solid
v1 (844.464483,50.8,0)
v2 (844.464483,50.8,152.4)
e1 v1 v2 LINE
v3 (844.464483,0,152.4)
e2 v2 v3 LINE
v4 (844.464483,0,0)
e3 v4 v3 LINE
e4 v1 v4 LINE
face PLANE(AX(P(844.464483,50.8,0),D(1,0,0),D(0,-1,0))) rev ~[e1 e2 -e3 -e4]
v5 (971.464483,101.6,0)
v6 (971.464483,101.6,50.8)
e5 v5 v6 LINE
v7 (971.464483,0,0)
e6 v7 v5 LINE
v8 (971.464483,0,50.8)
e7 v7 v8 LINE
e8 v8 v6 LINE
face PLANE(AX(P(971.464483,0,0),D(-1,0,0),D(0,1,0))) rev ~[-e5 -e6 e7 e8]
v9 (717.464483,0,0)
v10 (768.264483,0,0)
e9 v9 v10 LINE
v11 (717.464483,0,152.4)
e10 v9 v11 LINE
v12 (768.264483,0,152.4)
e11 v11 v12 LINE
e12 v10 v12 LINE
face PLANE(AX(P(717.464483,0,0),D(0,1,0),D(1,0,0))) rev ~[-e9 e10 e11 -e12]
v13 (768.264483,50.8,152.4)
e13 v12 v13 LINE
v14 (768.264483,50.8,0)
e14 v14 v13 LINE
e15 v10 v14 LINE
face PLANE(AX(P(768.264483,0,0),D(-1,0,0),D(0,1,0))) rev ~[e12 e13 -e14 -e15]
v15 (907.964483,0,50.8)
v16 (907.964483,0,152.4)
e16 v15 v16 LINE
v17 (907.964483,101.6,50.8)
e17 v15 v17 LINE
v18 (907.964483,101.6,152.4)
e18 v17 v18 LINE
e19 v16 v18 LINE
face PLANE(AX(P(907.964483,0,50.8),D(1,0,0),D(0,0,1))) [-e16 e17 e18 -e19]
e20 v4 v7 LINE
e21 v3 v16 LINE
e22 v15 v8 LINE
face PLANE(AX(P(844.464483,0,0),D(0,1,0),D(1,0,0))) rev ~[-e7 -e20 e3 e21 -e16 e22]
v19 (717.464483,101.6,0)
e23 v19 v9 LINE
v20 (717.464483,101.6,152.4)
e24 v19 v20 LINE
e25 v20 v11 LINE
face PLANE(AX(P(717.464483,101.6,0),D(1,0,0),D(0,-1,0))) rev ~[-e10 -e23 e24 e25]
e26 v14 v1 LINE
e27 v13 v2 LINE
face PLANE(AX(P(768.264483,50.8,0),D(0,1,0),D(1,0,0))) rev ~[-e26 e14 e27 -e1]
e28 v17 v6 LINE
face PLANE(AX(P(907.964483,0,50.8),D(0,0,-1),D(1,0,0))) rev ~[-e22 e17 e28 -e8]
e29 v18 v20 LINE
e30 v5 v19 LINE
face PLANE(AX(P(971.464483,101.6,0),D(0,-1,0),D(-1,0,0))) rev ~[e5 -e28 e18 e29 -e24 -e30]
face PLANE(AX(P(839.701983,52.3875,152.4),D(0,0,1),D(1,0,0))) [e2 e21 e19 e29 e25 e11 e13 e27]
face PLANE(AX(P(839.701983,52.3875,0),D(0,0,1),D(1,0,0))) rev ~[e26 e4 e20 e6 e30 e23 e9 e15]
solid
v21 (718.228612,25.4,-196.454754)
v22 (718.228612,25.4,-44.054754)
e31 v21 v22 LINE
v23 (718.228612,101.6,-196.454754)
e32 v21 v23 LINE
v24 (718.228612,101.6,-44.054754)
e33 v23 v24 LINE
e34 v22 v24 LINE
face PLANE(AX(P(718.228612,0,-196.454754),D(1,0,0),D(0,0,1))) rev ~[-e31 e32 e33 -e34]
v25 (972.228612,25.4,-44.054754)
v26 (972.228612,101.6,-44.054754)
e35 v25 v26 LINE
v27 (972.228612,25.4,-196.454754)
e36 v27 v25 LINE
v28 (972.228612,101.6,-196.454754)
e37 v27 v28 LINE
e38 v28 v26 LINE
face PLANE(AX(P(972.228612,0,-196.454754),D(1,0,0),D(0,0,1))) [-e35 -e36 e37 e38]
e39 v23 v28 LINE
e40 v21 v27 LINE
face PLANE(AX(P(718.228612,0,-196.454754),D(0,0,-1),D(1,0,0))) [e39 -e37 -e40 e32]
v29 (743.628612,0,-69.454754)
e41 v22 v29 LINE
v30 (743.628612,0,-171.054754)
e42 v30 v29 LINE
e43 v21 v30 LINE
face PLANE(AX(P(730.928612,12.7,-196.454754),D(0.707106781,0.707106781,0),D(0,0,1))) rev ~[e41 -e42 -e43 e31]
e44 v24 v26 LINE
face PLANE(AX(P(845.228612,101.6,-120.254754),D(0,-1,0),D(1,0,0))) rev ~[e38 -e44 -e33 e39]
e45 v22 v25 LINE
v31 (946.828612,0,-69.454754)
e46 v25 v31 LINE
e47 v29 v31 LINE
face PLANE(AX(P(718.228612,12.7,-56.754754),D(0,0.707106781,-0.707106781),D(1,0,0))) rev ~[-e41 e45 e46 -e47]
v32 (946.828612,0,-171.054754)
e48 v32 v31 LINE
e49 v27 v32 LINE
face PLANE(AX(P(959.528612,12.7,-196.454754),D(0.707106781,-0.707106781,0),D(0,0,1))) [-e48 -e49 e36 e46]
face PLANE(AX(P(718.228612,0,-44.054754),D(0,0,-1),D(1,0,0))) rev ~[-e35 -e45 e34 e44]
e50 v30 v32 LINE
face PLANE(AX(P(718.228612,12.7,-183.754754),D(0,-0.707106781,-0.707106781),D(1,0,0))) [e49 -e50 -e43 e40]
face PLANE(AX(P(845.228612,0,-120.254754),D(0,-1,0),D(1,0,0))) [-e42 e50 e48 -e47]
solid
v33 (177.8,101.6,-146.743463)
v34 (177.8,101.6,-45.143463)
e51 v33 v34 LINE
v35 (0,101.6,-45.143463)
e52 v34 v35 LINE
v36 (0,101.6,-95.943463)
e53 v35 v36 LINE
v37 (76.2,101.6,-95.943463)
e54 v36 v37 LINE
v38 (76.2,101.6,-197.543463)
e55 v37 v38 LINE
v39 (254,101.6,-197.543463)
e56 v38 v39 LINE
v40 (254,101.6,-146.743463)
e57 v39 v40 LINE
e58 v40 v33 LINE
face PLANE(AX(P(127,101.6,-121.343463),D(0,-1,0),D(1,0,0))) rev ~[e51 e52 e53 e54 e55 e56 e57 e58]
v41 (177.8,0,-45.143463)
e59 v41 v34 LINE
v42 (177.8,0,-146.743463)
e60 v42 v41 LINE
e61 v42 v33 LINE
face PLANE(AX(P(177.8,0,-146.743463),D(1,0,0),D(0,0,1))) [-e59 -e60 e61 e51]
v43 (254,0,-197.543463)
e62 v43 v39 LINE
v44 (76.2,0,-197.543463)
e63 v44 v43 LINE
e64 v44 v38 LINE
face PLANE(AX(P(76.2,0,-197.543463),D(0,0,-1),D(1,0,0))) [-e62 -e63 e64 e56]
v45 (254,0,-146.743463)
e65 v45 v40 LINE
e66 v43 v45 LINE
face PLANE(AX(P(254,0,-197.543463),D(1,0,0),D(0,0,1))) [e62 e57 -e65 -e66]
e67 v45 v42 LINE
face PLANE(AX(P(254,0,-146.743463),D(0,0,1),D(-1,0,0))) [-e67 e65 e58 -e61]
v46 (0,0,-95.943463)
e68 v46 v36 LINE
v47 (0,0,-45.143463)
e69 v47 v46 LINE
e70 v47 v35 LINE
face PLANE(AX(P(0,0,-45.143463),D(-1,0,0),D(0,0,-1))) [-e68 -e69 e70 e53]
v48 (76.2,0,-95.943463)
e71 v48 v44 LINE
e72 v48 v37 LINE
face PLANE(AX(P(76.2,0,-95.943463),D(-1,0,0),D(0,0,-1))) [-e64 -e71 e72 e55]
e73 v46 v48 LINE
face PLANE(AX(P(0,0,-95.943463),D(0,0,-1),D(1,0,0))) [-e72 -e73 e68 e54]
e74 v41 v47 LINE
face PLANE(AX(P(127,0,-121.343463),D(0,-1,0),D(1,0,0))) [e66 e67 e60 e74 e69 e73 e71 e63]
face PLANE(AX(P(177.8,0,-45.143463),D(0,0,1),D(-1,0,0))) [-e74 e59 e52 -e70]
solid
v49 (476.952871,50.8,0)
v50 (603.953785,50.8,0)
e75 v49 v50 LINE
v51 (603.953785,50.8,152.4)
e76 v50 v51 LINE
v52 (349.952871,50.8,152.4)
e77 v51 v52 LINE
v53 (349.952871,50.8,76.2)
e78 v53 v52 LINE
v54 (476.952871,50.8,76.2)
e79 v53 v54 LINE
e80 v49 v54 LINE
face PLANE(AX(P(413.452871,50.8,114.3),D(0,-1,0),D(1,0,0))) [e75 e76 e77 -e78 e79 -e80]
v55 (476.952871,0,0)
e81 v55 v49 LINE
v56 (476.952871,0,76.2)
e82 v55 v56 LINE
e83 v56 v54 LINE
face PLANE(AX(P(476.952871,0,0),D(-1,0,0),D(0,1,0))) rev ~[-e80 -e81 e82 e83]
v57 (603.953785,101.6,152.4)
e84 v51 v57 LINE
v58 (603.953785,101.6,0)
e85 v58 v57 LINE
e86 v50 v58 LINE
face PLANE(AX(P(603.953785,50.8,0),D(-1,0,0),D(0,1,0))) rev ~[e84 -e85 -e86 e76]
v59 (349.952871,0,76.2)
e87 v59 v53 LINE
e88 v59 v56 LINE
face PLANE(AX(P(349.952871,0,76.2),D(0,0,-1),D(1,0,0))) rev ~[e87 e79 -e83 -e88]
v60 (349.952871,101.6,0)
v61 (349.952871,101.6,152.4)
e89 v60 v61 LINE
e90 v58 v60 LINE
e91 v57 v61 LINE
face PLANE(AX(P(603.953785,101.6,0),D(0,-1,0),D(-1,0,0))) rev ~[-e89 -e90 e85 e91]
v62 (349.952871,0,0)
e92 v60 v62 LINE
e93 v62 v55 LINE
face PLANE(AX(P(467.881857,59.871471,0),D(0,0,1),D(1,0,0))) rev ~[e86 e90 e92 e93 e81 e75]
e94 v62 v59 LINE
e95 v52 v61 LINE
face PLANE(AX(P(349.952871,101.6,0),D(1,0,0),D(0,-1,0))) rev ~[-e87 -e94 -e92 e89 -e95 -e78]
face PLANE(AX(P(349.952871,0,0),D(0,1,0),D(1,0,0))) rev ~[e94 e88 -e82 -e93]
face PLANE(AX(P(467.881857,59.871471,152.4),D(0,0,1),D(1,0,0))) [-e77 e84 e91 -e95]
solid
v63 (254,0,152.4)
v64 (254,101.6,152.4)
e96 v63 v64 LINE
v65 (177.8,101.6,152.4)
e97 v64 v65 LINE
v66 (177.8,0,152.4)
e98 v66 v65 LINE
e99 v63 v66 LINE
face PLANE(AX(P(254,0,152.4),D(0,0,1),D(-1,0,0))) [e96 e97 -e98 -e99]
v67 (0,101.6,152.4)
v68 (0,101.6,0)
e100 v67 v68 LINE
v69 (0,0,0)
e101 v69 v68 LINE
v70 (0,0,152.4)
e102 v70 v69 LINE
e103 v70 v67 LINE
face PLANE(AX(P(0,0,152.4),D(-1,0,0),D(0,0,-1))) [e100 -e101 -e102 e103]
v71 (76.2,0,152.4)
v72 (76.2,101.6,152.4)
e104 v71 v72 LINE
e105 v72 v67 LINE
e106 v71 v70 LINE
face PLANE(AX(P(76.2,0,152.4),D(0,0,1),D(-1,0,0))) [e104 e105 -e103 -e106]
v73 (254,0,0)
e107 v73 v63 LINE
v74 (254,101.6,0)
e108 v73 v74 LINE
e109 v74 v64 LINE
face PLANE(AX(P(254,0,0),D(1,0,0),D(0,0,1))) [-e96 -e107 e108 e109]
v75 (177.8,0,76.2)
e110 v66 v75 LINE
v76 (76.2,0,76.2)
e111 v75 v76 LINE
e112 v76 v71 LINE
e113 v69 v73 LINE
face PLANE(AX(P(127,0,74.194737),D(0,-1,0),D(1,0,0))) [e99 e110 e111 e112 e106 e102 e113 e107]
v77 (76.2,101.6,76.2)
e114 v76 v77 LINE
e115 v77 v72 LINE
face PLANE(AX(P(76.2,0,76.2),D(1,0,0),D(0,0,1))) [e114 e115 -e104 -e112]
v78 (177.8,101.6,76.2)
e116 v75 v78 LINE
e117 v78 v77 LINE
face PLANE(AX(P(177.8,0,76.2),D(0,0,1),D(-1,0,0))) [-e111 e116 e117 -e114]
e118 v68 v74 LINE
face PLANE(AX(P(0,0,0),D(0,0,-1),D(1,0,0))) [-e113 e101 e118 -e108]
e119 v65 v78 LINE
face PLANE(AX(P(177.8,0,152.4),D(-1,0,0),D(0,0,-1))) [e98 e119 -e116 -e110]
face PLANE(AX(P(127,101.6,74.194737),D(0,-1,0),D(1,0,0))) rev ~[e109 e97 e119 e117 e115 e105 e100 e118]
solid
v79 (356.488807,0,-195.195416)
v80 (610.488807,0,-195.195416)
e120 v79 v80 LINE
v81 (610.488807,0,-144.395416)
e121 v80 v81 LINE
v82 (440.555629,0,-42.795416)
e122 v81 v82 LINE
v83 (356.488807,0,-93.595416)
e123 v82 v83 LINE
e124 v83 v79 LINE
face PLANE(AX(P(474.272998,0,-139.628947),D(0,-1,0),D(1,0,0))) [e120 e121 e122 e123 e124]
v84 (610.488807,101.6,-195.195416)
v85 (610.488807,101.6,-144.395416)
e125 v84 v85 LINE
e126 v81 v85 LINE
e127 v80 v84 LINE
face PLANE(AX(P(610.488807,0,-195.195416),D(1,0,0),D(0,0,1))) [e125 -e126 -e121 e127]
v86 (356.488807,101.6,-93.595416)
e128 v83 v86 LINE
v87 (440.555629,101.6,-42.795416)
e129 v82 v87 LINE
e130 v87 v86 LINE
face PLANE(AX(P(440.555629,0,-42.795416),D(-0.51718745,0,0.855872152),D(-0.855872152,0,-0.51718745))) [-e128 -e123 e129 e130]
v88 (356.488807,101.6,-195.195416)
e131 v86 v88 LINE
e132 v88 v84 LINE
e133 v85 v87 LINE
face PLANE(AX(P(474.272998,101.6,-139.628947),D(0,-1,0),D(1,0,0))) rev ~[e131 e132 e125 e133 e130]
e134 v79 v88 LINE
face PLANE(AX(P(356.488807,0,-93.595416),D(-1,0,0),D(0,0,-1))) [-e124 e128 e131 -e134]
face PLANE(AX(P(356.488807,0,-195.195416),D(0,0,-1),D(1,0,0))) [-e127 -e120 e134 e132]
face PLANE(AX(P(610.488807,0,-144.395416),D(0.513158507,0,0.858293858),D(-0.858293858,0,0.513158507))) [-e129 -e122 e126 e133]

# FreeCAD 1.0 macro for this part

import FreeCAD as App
import Part
import Sketcher
Q = App.Units.Quantity


def edges_at(feature, points):
    """Names of the edges that pass closest to the given points."""
    edges = feature.Shape.Edges
    near = lambda p: min(range(len(edges)), key=lambda i: edges[i].distToShape(Part.Vertex(*p))[0])
    return sorted({f"Edge{near(p) + 1}" for p in points})


def add_polygon(sketch, points):
    """Adds a closed chain of lines whose ends are joined by coincident constraints."""
    first, n = sketch.GeometryCount, len(points)
    for a, b in zip(points, points[1:] + points[:1]):
        sketch.addGeometry(Part.LineSegment(App.Vector(*a, 0), App.Vector(*b, 0)), False)
    for i in range(n):
        sketch.addConstraint(Sketcher.Constraint("Coincident", first + i, 2, first + (i + 1) % n, 1))

doc = App.newDocument("Part")
body = doc.addObject("PartDesign::Body", "Body")

# Sketch on XZ plane
sketch1 = body.newObject("Sketcher::SketchObject", "Sketch")
sketch1.AttachmentSupport = (doc.getObject("XZ_Plane"), [""])
sketch1.MapMode = "FlatFace"
add_polygon(sketch1, [(0, 152), (0, 0), (254, 0), (254, 152), (178, 152), (178, 76), (76, 76), (76, 152)])  # lines 0-7
sketch1.addConstraint([
    Sketcher.Constraint("Vertical", 0),
    Sketcher.Constraint("Horizontal", 1),
    Sketcher.Constraint("Vertical", 2),
    Sketcher.Constraint("Horizontal", 3),
    Sketcher.Constraint("Vertical", 4),
    Sketcher.Constraint("Horizontal", 5),
    Sketcher.Constraint("Vertical", 6),
    Sketcher.Constraint("Horizontal", 7),
    Sketcher.Constraint("Coincident", 0, 2, -1, 1),
    Sketcher.Constraint("Horizontal", 3, 2, 6, 2),
    Sketcher.Constraint("Equal", 3, 7),
    Sketcher.Constraint("Equal", 7, 4),
    Sketcher.Constraint("DistanceX", 1, 1, 1, 2, Q("10 in")),
    Sketcher.Constraint("DistanceX", 3, 2, 3, 1, Q("3 in")),
    Sketcher.Constraint("DistanceY", 0, 2, 0, 1, Q("6 in")),
])
pad1 = body.newObject("PartDesign::Pad", "Pad")
pad1.Profile = sketch1
pad1.Length = Q("4 in")
pad1.Reversed = True
body2 = doc.addObject("PartDesign::Body", "Body001")

# Sketch on XY plane
sketch2 = body2.newObject("Sketcher::SketchObject", "Sketch001")
sketch2.AttachmentSupport = (doc.getObject("XY_Plane001"), [""])
sketch2.MapMode = "FlatFace"
add_polygon(sketch2, [(604, 102), (350, 102), (350, 0), (477, 0), (477, 51), (604, 51)])  # lines 0-5
sketch2.addConstraint([
    Sketcher.Constraint("Horizontal", 0),
    Sketcher.Constraint("Vertical", 1),
    Sketcher.Constraint("Horizontal", 2),
    Sketcher.Constraint("Vertical", 3),
    Sketcher.Constraint("Horizontal", 4),
    Sketcher.Constraint("Vertical", 5),
    Sketcher.Constraint("PointOnObject", 1, 2, -1),
    Sketcher.Constraint("Equal", 3, 5),
    Sketcher.Constraint("DistanceX", 2, 1, 2, 2, Q("5 in")),
    Sketcher.Constraint("DistanceY", 1, 2, 1, 1, Q("4 in")),
    Sketcher.Constraint("DistanceX", 0, 2, 0, 1, Q("254.000914 mm")),
    Sketcher.Constraint("DistanceX", -1, 1, 0, 2, Q("349.952871 mm")),
])
pad2 = body2.newObject("PartDesign::Pad", "Pad001")
pad2.Profile = sketch2
pad2.Length = Q("6 in")

# Sketch on XZ plane
sketch3 = body2.newObject("Sketcher::SketchObject", "Sketch002")
sketch3.AttachmentSupport = (doc.getObject("XZ_Plane001"), [""])
sketch3.MapMode = "FlatFace"
add_polygon(sketch3, [(350, 152), (350, 76), (477, 76), (477, 152)])  # lines 0-3
sketch3.addConstraint([
    Sketcher.Constraint("Vertical", 0),
    Sketcher.Constraint("Horizontal", 1),
    Sketcher.Constraint("Vertical", 2),
    Sketcher.Constraint("Horizontal", 3),
    Sketcher.Constraint("DistanceX", 1, 1, 1, 2, Q("5 in")),
    Sketcher.Constraint("DistanceY", 0, 2, 0, 1, Q("3 in")),
    Sketcher.Constraint("DistanceY", -1, 1, 0, 2, Q("3 in")),
    Sketcher.Constraint("DistanceX", -1, 1, 0, 2, Q("349.952871 mm")),
])
pad3 = body2.newObject("PartDesign::Pad", "Pad002")
pad3.Profile = sketch3
pad3.Length = Q("2 in")
pad3.Reversed = True

# Sketch on XZ plane
sketch4 = body2.newObject("Sketcher::SketchObject", "Sketch003")
sketch4.AttachmentSupport = (doc.getObject("XZ_Plane001"), [""])
sketch4.MapMode = "FlatFace"
add_polygon(sketch4, [(350, 152), (350, 76), (477, 76), (477, 152)])  # lines 0-3
sketch4.addConstraint([
    Sketcher.Constraint("Vertical", 0),
    Sketcher.Constraint("Horizontal", 1),
    Sketcher.Constraint("Vertical", 2),
    Sketcher.Constraint("Horizontal", 3),
    Sketcher.Constraint("DistanceX", 1, 1, 1, 2, Q("5 in")),
    Sketcher.Constraint("DistanceY", 0, 2, 0, 1, Q("3 in")),
    Sketcher.Constraint("DistanceY", -1, 1, 0, 2, Q("3 in")),
    Sketcher.Constraint("DistanceX", -1, 1, 0, 2, Q("349.952871 mm")),
])
pocket1 = body2.newObject("PartDesign::Pocket", "Pocket")
pocket1.Profile = sketch4
pocket1.Length = Q("2 in")
body3 = doc.addObject("PartDesign::Body", "Body002")

# Sketch on XY plane
sketch5 = body3.newObject("Sketcher::SketchObject", "Sketch004")
sketch5.AttachmentSupport = (doc.getObject("XY_Plane002"), [""])
sketch5.MapMode = "FlatFace"
add_polygon(sketch5, [(971, 102), (717, 102), (717, 0), (768, 0), (768, 51), (844, 51), (844, 0), (971, 0)])  # lines 0-7
sketch5.addConstraint([
    Sketcher.Constraint("Horizontal", 0),
    Sketcher.Constraint("Vertical", 1),
    Sketcher.Constraint("Horizontal", 2),
    Sketcher.Constraint("Vertical", 3),
    Sketcher.Constraint("Horizontal", 4),
    Sketcher.Constraint("Vertical", 5),
    Sketcher.Constraint("Horizontal", 6),
    Sketcher.Constraint("Vertical", 7),
    Sketcher.Constraint("PointOnObject", 1, 2, -1),
    Sketcher.Constraint("PointOnObject", 5, 2, -1),
    Sketcher.Constraint("Equal", 2, 3),
    Sketcher.Constraint("DistanceX", 0, 2, 0, 1, Q("10 in")),
    Sketcher.Constraint("DistanceX", 2, 1, 2, 2, Q("2 in")),
    Sketcher.Constraint("DistanceX", 4, 1, 4, 2, Q("3 in")),
    Sketcher.Constraint("DistanceY", 1, 2, 1, 1, Q("4 in")),
    Sketcher.Constraint("DistanceX", -1, 1, 0, 2, Q("717.464483 mm")),
])
pad4 = body3.newObject("PartDesign::Pad", "Pad003")
pad4.Profile = sketch5
pad4.Length = Q("6 in")

# Sketch on XZ plane
sketch6 = body3.newObject("Sketcher::SketchObject", "Sketch005")
sketch6.AttachmentSupport = (doc.getObject("XZ_Plane002"), [""])
sketch6.MapMode = "FlatFace"
add_polygon(sketch6, [(908, 152), (908, 51), (971, 51), (971, 152)])  # lines 0-3
sketch6.addConstraint([
    Sketcher.Constraint("Vertical", 0),
    Sketcher.Constraint("Horizontal", 1),
    Sketcher.Constraint("Vertical", 2),
    Sketcher.Constraint("Horizontal", 3),
    Sketcher.Constraint("DistanceY", 0, 2, 0, 1, Q("4 in")),
    Sketcher.Constraint("DistanceX", 1, 1, 1, 2, Q("2.5 in")),
    Sketcher.Constraint("DistanceY", -1, 1, 0, 2, Q("2 in")),
    Sketcher.Constraint("DistanceX", -1, 1, 0, 2, Q("907.964483 mm")),
])
pocket2 = body3.newObject("PartDesign::Pocket", "Pocket001")
pocket2.Profile = sketch6
pocket2.Length = Q("4 in")
body4 = doc.addObject("PartDesign::Body", "Body003")

# Sketch on XZ plane
sketch7 = body4.newObject("Sketcher::SketchObject", "Sketch006")
sketch7.AttachmentSupport = (doc.getObject("XZ_Plane003"), [""])
sketch7.MapMode = "FlatFace"
add_polygon(sketch7, [(178, -45), (0, -45), (0, -96), (76, -96), (76, -198), (254, -198), (254, -147), (178, -147)])  # lines 0-7
sketch7.addConstraint([
    Sketcher.Constraint("Horizontal", 0),
    Sketcher.Constraint("Vertical", 1),
    Sketcher.Constraint("Horizontal", 2),
    Sketcher.Constraint("Vertical", 3),
    Sketcher.Constraint("Horizontal", 4),
    Sketcher.Constraint("Vertical", 5),
    Sketcher.Constraint("Horizontal", 6),
    Sketcher.Constraint("Vertical", 7),
    Sketcher.Constraint("PointOnObject", 0, 2, -2),
    Sketcher.Constraint("Equal", 0, 4),
    Sketcher.Constraint("Equal", 1, 5),
    Sketcher.Constraint("DistanceX", 0, 2, 0, 1, Q("7 in")),
    Sketcher.Constraint("DistanceX", 2, 1, 2, 2, Q("3 in")),
    Sketcher.Constraint("DistanceY", 1, 2, 1, 1, Q("2 in")),
    Sketcher.Constraint("DistanceY", 3, 2, 3, 1, Q("4 in")),
    Sketcher.Constraint("DistanceY", 0, 2, -1, 1, Q("45.143463 mm")),
])
pad5 = body4.newObject("PartDesign::Pad", "Pad004")
pad5.Profile = sketch7
pad5.Length = Q("4 in")
pad5.Reversed = True
body5 = doc.addObject("PartDesign::Body", "Body004")

# Sketch on XZ plane
sketch8 = body5.newObject("Sketcher::SketchObject", "Sketch007")
sketch8.AttachmentSupport = (doc.getObject("XZ_Plane004"), [""])
sketch8.MapMode = "FlatFace"
add_polygon(sketch8, [(356, -94), (356, -195), (610, -195), (610, -144), (441, -43)])  # lines 0-4
sketch8.addConstraint([
    Sketcher.Constraint("Vertical", 0),
    Sketcher.Constraint("Horizontal", 1),
    Sketcher.Constraint("Vertical", 2),
    Sketcher.Constraint("DistanceX", 1, 1, 1, 2, Q("10 in")),
    Sketcher.Constraint("DistanceY", 0, 2, 0, 1, Q("4 in")),
    Sketcher.Constraint("DistanceY", 2, 1, 2, 2, Q("2 in")),
    Sketcher.Constraint("DistanceY", 0, 2, 3, 2, Q("6 in")),
    Sketcher.Constraint("DistanceX", -1, 1, 3, 2, Q("440.555629 mm")),
    Sketcher.Constraint("DistanceX", 0, 2, 3, 2, Q("84.066822 mm")),
    Sketcher.Constraint("DistanceY", 0, 2, -1, 1, Q("195.195416 mm")),
])
pad6 = body5.newObject("PartDesign::Pad", "Pad005")
pad6.Profile = sketch8
pad6.Length = Q("4 in")
pad6.Reversed = True
body6 = doc.addObject("PartDesign::Body", "Body005")

# Sketch on XZ plane
sketch9 = body6.newObject("Sketcher::SketchObject", "Sketch008")
sketch9.AttachmentSupport = (doc.getObject("XZ_Plane005"), [""])
sketch9.MapMode = "FlatFace"
add_polygon(sketch9, [(718, -44), (718, -196), (972, -196), (972, -44)])  # lines 0-3
sketch9.addConstraint([
    Sketcher.Constraint("Vertical", 0),
    Sketcher.Constraint("Horizontal", 1),
    Sketcher.Constraint("Vertical", 2),
    Sketcher.Constraint("Horizontal", 3),
    Sketcher.Constraint("DistanceX", 1, 1, 1, 2, Q("10 in")),
    Sketcher.Constraint("DistanceY", 0, 2, 0, 1, Q("6 in")),
    Sketcher.Constraint("DistanceX", -1, 1, 0, 2, Q("718.228612 mm")),
    Sketcher.Constraint("DistanceY", 0, 2, -1, 1, Q("196.454754 mm")),
])
pad7 = body6.newObject("PartDesign::Pad", "Pad006")
pad7.Profile = sketch9
pad7.Length = Q("4 in")
pad7.Reversed = True
doc.recompute()

chamfer = body6.newObject("PartDesign::Chamfer", "Chamfer")
chamfer.Base = (pad7, edges_at(pad7, [
    (845.229, 0, -196.455),
    (972.229, 0, -120.255),
    (845.229, 0, -44.055),
    (718.229, 0, -120.255),
]))
chamfer.Size = Q("1 in")

doc.recompute()
